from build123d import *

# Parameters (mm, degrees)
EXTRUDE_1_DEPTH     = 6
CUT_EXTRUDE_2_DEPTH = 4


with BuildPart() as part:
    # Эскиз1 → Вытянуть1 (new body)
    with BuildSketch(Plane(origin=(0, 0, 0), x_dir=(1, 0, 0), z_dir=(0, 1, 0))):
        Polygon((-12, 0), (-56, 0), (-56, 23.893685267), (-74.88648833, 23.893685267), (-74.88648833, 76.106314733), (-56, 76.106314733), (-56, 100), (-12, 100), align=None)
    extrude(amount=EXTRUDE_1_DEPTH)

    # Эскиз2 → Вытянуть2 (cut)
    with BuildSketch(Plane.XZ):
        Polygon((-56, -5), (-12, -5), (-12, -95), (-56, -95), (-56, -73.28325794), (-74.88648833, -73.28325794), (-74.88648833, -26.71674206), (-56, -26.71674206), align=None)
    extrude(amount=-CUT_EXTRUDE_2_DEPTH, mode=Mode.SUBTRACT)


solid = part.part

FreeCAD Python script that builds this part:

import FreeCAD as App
import Part
import Sketcher

V = App.Vector

doc = App.newDocument("Part")
body = doc.addObject("PartDesign::Body", "Body")

# Sketch on XZ plane
sketch1 = body.newObject("Sketcher::SketchObject", "Sketch")
sketch1.AttachmentSupport = (doc.getObject("XZ_Plane"), [""])
sketch1.MapMode = "FlatFace"
sketch1.addGeometry([
    Part.LineSegment(V(-56, 0, 0), V(-12, 0, 0)),  # 0
    Part.LineSegment(V(-12, 0, 0), V(-12, -100, 0)),  # 1
    Part.LineSegment(V(-12, -100, 0), V(-56, -100, 0)),  # 2
    Part.LineSegment(V(-56, -100, 0), V(-56, -76, 0)),  # 3
    Part.LineSegment(V(-56, -76, 0), V(-75, -76, 0)),  # 4
    Part.LineSegment(V(-75, -76, 0), V(-75, -24, 0)),  # 5
    Part.LineSegment(V(-75, -24, 0), V(-56, -24, 0)),  # 6
    Part.LineSegment(V(-56, -24, 0), V(-56, 0, 0)),  # 7
], False)
sketch1.addConstraint([
    Sketcher.Constraint("Coincident", 0, 2, 1, 1),
    Sketcher.Constraint("Coincident", 1, 2, 2, 1),
    Sketcher.Constraint("Coincident", 2, 2, 3, 1),
    Sketcher.Constraint("Coincident", 3, 2, 4, 1),
    Sketcher.Constraint("Coincident", 4, 2, 5, 1),
    Sketcher.Constraint("Coincident", 5, 2, 6, 1),
    Sketcher.Constraint("Coincident", 6, 2, 7, 1),
    Sketcher.Constraint("Coincident", 7, 2, 0, 1),
    Sketcher.Constraint("Horizontal", 0),
    Sketcher.Constraint("Vertical", 1),
    Sketcher.Constraint("Horizontal", 2),
    Sketcher.Constraint("Vertical", 3),
    Sketcher.Constraint("Horizontal", 4),
    Sketcher.Constraint("Vertical", 5),
    Sketcher.Constraint("Horizontal", 6),
    Sketcher.Constraint("Vertical", 7),
    Sketcher.Constraint("PointOnObject", 0, 2, -1),
    Sketcher.Constraint("Vertical", 3, 2, 6, 2),
    Sketcher.Constraint("Equal", 3, 7),
    Sketcher.Constraint("DistanceX", 0, 1, 0, 2, 44.0),
    Sketcher.Constraint("DistanceY", 1, 2, 1, 1, 100.0),
    Sketcher.Constraint("DistanceX", 0, 2, -1, 1, 12.0),
    Sketcher.Constraint("DistanceX", 4, 2, 4, 1, 18.886488),
    Sketcher.Constraint("DistanceY", 5, 1, 5, 2, 52.212629),
])
pad1 = body.newObject("PartDesign::Pad", "Pad")
pad1.Profile = sketch1
pad1.Length = 6
pad1.Reversed = True

# Sketch on XZ plane
sketch2 = body.newObject("Sketcher::SketchObject", "Sketch001")
sketch2.AttachmentSupport = (doc.getObject("XZ_Plane"), [""])
sketch2.MapMode = "FlatFace"
sketch2.addGeometry([
    Part.LineSegment(V(-12, -5, 0), V(-56, -5, 0)),  # 0
    Part.LineSegment(V(-56, -5, 0), V(-56, -27, 0)),  # 1
    Part.LineSegment(V(-56, -27, 0), V(-75, -27, 0)),  # 2
    Part.LineSegment(V(-75, -27, 0), V(-75, -73, 0)),  # 3
    Part.LineSegment(V(-75, -73, 0), V(-56, -73, 0)),  # 4
    Part.LineSegment(V(-56, -73, 0), V(-56, -95, 0)),  # 5
    Part.LineSegment(V(-56, -95, 0), V(-12, -95, 0)),  # 6
    Part.LineSegment(V(-12, -95, 0), V(-12, -5, 0)),  # 7
], False)
sketch2.addConstraint([
    Sketcher.Constraint("Coincident", 0, 2, 1, 1),
    Sketcher.Constraint("Coincident", 1, 2, 2, 1),
    Sketcher.Constraint("Coincident", 2, 2, 3, 1),
    Sketcher.Constraint("Coincident", 3, 2, 4, 1),
    Sketcher.Constraint("Coincident", 4, 2, 5, 1),
    Sketcher.Constraint("Coincident", 5, 2, 6, 1),
    Sketcher.Constraint("Coincident", 6, 2, 7, 1),
    Sketcher.Constraint("Coincident", 7, 2, 0, 1),
    Sketcher.Constraint("Horizontal", 0),
    Sketcher.Constraint("Vertical", 1),
    Sketcher.Constraint("Horizontal", 2),
    Sketcher.Constraint("Vertical", 3),
    Sketcher.Constraint("Horizontal", 4),
    Sketcher.Constraint("Vertical", 5),
    Sketcher.Constraint("Horizontal", 6),
    Sketcher.Constraint("Vertical", 7),
    Sketcher.Constraint("Vertical", 1, 2, 4, 2),
    Sketcher.Constraint("Equal", 1, 5),
    Sketcher.Constraint("DistanceX", 0, 2, 0, 1, 44.0),
    Sketcher.Constraint("DistanceY", 7, 1, 7, 2, 90.0),
    Sketcher.Constraint("DistanceX", 0, 2, -1, 1, 56.0),
    Sketcher.Constraint("DistanceY", 0, 2, -1, 1, 5.0),
    Sketcher.Constraint("DistanceX", 2, 2, 2, 1, 18.886488),
    Sketcher.Constraint("DistanceY", 1, 2, 1, 1, 21.716742),
])
pocket1 = body.newObject("PartDesign::Pocket", "Pocket")
pocket1.Profile = sketch2
pocket1.Length = 4

doc.recompute()
